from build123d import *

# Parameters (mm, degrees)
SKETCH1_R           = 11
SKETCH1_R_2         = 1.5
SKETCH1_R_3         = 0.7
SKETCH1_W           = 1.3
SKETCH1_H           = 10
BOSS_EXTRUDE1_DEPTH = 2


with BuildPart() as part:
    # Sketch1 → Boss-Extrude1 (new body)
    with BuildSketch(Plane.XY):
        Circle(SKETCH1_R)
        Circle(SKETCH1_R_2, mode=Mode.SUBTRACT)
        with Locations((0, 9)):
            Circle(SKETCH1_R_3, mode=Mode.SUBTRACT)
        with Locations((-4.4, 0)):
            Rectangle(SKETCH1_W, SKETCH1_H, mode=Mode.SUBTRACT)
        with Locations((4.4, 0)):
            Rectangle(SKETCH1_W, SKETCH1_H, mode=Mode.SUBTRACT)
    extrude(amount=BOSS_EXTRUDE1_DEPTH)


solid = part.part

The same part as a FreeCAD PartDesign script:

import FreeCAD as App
import Part
import Sketcher

doc = App.newDocument("Part")
params = doc.addObject("Spreadsheet::Sheet", "Params")
for row, (alias, value) in enumerate([
    ("sketch1_diameter", "22 mm"),
    ("sketch1_diameter2", "3 mm"),
    ("sketch1_diameter3", "1.4 mm"),
    ("sketch1_height", "10 mm"),
    ("sketch1_width", "1.3 mm"),
    ("pad1_length", "2 mm"),
], start=1):
    params.set(f"A{row}", alias)
    params.set(f"B{row}", "=" + value)
    params.setAlias(f"B{row}", alias)

body = doc.addObject("PartDesign::Body", "Body")

# Sketch on XY plane
sketch1 = body.newObject("Sketcher::SketchObject", "Sketch")
sketch1.AttachmentSupport = (doc.getObject("XY_Plane"), [""])
sketch1.MapMode = "FlatFace"
sketch1.addGeometry([
    Part.Circle(App.Vector(0, 0, 0), App.Vector(0, 0, 1), 11),  # 0
    Part.LineSegment(App.Vector(-3.75, -5, 0), App.Vector(-5.05, -5, 0)),  # 1
    Part.LineSegment(App.Vector(-5.05, -5, 0), App.Vector(-5.05, 5, 0)),  # 2
    Part.LineSegment(App.Vector(-5.05, 5, 0), App.Vector(-3.75, 5, 0)),  # 3
    Part.LineSegment(App.Vector(-3.75, 5, 0), App.Vector(-3.75, -5, 0)),  # 4
    Part.Circle(App.Vector(0, 0, 0), App.Vector(0, 0, 1), 1.5),  # 5
    Part.LineSegment(App.Vector(5.05, -5, 0), App.Vector(3.75, -5, 0)),  # 6
    Part.LineSegment(App.Vector(3.75, -5, 0), App.Vector(3.75, 5, 0)),  # 7
    Part.LineSegment(App.Vector(3.75, 5, 0), App.Vector(5.05, 5, 0)),  # 8
    Part.LineSegment(App.Vector(5.05, 5, 0), App.Vector(5.05, -5, 0)),  # 9
    Part.Circle(App.Vector(0, 9, 0), App.Vector(0, 0, 1), 0.7),  # 10
], False)
sketch1.addConstraint([
    Sketcher.Constraint("Coincident", 1, 2, 2, 1),
    Sketcher.Constraint("Coincident", 2, 2, 3, 1),
    Sketcher.Constraint("Coincident", 3, 2, 4, 1),
    Sketcher.Constraint("Coincident", 4, 2, 1, 1),
    Sketcher.Constraint("Coincident", 6, 2, 7, 1),
    Sketcher.Constraint("Coincident", 7, 2, 8, 1),
    Sketcher.Constraint("Coincident", 8, 2, 9, 1),
    Sketcher.Constraint("Coincident", 9, 2, 6, 1),
    Sketcher.Constraint("Horizontal", 1),
    Sketcher.Constraint("Vertical", 2),
    Sketcher.Constraint("Horizontal", 3),
    Sketcher.Constraint("Vertical", 4),
    Sketcher.Constraint("Horizontal", 6),
    Sketcher.Constraint("Vertical", 7),
    Sketcher.Constraint("Horizontal", 8),
    Sketcher.Constraint("Vertical", 9),
    Sketcher.Constraint("Coincident", 0, 3, -1, 1),
    Sketcher.Constraint("Coincident", 5, 3, -1, 1),
    Sketcher.Constraint("Symmetric", 3, 2, 6, 2, -1, 1),
    Sketcher.Constraint("Symmetric", 1, 2, 8, 2, -1, 1),
    Sketcher.Constraint("PointOnObject", 10, 3, -2),
    Sketcher.Constraint("Horizontal", 4, 2, 6, 2),
    Sketcher.Constraint("Diameter", 0, 22.0),
    Sketcher.Constraint("Diameter", 5, 3.0),
    Sketcher.Constraint("Diameter", 10, 1.4),
    Sketcher.Constraint("DistanceY", 2, 1, 2, 2, 10.0),
    Sketcher.Constraint("DistanceX", 1, 2, 1, 1, 1.3),
    Sketcher.Constraint("DistanceY", -1, 1, 10, 3, 9.0),
    Sketcher.Constraint("DistanceX", 4, 2, 6, 2, 7.5),
])
sketch1.setExpression("Constraints[22]", "Params.sketch1_diameter")
sketch1.setExpression("Constraints[23]", "Params.sketch1_diameter2")
sketch1.setExpression("Constraints[24]", "Params.sketch1_diameter3")
sketch1.setExpression("Constraints[25]", "Params.sketch1_height")
sketch1.setExpression("Constraints[26]", "Params.sketch1_width")
pad1 = body.newObject("PartDesign::Pad", "Pad")
pad1.Profile = sketch1
pad1.setExpression("Length", "Params.pad1_length")

doc.recompute()
